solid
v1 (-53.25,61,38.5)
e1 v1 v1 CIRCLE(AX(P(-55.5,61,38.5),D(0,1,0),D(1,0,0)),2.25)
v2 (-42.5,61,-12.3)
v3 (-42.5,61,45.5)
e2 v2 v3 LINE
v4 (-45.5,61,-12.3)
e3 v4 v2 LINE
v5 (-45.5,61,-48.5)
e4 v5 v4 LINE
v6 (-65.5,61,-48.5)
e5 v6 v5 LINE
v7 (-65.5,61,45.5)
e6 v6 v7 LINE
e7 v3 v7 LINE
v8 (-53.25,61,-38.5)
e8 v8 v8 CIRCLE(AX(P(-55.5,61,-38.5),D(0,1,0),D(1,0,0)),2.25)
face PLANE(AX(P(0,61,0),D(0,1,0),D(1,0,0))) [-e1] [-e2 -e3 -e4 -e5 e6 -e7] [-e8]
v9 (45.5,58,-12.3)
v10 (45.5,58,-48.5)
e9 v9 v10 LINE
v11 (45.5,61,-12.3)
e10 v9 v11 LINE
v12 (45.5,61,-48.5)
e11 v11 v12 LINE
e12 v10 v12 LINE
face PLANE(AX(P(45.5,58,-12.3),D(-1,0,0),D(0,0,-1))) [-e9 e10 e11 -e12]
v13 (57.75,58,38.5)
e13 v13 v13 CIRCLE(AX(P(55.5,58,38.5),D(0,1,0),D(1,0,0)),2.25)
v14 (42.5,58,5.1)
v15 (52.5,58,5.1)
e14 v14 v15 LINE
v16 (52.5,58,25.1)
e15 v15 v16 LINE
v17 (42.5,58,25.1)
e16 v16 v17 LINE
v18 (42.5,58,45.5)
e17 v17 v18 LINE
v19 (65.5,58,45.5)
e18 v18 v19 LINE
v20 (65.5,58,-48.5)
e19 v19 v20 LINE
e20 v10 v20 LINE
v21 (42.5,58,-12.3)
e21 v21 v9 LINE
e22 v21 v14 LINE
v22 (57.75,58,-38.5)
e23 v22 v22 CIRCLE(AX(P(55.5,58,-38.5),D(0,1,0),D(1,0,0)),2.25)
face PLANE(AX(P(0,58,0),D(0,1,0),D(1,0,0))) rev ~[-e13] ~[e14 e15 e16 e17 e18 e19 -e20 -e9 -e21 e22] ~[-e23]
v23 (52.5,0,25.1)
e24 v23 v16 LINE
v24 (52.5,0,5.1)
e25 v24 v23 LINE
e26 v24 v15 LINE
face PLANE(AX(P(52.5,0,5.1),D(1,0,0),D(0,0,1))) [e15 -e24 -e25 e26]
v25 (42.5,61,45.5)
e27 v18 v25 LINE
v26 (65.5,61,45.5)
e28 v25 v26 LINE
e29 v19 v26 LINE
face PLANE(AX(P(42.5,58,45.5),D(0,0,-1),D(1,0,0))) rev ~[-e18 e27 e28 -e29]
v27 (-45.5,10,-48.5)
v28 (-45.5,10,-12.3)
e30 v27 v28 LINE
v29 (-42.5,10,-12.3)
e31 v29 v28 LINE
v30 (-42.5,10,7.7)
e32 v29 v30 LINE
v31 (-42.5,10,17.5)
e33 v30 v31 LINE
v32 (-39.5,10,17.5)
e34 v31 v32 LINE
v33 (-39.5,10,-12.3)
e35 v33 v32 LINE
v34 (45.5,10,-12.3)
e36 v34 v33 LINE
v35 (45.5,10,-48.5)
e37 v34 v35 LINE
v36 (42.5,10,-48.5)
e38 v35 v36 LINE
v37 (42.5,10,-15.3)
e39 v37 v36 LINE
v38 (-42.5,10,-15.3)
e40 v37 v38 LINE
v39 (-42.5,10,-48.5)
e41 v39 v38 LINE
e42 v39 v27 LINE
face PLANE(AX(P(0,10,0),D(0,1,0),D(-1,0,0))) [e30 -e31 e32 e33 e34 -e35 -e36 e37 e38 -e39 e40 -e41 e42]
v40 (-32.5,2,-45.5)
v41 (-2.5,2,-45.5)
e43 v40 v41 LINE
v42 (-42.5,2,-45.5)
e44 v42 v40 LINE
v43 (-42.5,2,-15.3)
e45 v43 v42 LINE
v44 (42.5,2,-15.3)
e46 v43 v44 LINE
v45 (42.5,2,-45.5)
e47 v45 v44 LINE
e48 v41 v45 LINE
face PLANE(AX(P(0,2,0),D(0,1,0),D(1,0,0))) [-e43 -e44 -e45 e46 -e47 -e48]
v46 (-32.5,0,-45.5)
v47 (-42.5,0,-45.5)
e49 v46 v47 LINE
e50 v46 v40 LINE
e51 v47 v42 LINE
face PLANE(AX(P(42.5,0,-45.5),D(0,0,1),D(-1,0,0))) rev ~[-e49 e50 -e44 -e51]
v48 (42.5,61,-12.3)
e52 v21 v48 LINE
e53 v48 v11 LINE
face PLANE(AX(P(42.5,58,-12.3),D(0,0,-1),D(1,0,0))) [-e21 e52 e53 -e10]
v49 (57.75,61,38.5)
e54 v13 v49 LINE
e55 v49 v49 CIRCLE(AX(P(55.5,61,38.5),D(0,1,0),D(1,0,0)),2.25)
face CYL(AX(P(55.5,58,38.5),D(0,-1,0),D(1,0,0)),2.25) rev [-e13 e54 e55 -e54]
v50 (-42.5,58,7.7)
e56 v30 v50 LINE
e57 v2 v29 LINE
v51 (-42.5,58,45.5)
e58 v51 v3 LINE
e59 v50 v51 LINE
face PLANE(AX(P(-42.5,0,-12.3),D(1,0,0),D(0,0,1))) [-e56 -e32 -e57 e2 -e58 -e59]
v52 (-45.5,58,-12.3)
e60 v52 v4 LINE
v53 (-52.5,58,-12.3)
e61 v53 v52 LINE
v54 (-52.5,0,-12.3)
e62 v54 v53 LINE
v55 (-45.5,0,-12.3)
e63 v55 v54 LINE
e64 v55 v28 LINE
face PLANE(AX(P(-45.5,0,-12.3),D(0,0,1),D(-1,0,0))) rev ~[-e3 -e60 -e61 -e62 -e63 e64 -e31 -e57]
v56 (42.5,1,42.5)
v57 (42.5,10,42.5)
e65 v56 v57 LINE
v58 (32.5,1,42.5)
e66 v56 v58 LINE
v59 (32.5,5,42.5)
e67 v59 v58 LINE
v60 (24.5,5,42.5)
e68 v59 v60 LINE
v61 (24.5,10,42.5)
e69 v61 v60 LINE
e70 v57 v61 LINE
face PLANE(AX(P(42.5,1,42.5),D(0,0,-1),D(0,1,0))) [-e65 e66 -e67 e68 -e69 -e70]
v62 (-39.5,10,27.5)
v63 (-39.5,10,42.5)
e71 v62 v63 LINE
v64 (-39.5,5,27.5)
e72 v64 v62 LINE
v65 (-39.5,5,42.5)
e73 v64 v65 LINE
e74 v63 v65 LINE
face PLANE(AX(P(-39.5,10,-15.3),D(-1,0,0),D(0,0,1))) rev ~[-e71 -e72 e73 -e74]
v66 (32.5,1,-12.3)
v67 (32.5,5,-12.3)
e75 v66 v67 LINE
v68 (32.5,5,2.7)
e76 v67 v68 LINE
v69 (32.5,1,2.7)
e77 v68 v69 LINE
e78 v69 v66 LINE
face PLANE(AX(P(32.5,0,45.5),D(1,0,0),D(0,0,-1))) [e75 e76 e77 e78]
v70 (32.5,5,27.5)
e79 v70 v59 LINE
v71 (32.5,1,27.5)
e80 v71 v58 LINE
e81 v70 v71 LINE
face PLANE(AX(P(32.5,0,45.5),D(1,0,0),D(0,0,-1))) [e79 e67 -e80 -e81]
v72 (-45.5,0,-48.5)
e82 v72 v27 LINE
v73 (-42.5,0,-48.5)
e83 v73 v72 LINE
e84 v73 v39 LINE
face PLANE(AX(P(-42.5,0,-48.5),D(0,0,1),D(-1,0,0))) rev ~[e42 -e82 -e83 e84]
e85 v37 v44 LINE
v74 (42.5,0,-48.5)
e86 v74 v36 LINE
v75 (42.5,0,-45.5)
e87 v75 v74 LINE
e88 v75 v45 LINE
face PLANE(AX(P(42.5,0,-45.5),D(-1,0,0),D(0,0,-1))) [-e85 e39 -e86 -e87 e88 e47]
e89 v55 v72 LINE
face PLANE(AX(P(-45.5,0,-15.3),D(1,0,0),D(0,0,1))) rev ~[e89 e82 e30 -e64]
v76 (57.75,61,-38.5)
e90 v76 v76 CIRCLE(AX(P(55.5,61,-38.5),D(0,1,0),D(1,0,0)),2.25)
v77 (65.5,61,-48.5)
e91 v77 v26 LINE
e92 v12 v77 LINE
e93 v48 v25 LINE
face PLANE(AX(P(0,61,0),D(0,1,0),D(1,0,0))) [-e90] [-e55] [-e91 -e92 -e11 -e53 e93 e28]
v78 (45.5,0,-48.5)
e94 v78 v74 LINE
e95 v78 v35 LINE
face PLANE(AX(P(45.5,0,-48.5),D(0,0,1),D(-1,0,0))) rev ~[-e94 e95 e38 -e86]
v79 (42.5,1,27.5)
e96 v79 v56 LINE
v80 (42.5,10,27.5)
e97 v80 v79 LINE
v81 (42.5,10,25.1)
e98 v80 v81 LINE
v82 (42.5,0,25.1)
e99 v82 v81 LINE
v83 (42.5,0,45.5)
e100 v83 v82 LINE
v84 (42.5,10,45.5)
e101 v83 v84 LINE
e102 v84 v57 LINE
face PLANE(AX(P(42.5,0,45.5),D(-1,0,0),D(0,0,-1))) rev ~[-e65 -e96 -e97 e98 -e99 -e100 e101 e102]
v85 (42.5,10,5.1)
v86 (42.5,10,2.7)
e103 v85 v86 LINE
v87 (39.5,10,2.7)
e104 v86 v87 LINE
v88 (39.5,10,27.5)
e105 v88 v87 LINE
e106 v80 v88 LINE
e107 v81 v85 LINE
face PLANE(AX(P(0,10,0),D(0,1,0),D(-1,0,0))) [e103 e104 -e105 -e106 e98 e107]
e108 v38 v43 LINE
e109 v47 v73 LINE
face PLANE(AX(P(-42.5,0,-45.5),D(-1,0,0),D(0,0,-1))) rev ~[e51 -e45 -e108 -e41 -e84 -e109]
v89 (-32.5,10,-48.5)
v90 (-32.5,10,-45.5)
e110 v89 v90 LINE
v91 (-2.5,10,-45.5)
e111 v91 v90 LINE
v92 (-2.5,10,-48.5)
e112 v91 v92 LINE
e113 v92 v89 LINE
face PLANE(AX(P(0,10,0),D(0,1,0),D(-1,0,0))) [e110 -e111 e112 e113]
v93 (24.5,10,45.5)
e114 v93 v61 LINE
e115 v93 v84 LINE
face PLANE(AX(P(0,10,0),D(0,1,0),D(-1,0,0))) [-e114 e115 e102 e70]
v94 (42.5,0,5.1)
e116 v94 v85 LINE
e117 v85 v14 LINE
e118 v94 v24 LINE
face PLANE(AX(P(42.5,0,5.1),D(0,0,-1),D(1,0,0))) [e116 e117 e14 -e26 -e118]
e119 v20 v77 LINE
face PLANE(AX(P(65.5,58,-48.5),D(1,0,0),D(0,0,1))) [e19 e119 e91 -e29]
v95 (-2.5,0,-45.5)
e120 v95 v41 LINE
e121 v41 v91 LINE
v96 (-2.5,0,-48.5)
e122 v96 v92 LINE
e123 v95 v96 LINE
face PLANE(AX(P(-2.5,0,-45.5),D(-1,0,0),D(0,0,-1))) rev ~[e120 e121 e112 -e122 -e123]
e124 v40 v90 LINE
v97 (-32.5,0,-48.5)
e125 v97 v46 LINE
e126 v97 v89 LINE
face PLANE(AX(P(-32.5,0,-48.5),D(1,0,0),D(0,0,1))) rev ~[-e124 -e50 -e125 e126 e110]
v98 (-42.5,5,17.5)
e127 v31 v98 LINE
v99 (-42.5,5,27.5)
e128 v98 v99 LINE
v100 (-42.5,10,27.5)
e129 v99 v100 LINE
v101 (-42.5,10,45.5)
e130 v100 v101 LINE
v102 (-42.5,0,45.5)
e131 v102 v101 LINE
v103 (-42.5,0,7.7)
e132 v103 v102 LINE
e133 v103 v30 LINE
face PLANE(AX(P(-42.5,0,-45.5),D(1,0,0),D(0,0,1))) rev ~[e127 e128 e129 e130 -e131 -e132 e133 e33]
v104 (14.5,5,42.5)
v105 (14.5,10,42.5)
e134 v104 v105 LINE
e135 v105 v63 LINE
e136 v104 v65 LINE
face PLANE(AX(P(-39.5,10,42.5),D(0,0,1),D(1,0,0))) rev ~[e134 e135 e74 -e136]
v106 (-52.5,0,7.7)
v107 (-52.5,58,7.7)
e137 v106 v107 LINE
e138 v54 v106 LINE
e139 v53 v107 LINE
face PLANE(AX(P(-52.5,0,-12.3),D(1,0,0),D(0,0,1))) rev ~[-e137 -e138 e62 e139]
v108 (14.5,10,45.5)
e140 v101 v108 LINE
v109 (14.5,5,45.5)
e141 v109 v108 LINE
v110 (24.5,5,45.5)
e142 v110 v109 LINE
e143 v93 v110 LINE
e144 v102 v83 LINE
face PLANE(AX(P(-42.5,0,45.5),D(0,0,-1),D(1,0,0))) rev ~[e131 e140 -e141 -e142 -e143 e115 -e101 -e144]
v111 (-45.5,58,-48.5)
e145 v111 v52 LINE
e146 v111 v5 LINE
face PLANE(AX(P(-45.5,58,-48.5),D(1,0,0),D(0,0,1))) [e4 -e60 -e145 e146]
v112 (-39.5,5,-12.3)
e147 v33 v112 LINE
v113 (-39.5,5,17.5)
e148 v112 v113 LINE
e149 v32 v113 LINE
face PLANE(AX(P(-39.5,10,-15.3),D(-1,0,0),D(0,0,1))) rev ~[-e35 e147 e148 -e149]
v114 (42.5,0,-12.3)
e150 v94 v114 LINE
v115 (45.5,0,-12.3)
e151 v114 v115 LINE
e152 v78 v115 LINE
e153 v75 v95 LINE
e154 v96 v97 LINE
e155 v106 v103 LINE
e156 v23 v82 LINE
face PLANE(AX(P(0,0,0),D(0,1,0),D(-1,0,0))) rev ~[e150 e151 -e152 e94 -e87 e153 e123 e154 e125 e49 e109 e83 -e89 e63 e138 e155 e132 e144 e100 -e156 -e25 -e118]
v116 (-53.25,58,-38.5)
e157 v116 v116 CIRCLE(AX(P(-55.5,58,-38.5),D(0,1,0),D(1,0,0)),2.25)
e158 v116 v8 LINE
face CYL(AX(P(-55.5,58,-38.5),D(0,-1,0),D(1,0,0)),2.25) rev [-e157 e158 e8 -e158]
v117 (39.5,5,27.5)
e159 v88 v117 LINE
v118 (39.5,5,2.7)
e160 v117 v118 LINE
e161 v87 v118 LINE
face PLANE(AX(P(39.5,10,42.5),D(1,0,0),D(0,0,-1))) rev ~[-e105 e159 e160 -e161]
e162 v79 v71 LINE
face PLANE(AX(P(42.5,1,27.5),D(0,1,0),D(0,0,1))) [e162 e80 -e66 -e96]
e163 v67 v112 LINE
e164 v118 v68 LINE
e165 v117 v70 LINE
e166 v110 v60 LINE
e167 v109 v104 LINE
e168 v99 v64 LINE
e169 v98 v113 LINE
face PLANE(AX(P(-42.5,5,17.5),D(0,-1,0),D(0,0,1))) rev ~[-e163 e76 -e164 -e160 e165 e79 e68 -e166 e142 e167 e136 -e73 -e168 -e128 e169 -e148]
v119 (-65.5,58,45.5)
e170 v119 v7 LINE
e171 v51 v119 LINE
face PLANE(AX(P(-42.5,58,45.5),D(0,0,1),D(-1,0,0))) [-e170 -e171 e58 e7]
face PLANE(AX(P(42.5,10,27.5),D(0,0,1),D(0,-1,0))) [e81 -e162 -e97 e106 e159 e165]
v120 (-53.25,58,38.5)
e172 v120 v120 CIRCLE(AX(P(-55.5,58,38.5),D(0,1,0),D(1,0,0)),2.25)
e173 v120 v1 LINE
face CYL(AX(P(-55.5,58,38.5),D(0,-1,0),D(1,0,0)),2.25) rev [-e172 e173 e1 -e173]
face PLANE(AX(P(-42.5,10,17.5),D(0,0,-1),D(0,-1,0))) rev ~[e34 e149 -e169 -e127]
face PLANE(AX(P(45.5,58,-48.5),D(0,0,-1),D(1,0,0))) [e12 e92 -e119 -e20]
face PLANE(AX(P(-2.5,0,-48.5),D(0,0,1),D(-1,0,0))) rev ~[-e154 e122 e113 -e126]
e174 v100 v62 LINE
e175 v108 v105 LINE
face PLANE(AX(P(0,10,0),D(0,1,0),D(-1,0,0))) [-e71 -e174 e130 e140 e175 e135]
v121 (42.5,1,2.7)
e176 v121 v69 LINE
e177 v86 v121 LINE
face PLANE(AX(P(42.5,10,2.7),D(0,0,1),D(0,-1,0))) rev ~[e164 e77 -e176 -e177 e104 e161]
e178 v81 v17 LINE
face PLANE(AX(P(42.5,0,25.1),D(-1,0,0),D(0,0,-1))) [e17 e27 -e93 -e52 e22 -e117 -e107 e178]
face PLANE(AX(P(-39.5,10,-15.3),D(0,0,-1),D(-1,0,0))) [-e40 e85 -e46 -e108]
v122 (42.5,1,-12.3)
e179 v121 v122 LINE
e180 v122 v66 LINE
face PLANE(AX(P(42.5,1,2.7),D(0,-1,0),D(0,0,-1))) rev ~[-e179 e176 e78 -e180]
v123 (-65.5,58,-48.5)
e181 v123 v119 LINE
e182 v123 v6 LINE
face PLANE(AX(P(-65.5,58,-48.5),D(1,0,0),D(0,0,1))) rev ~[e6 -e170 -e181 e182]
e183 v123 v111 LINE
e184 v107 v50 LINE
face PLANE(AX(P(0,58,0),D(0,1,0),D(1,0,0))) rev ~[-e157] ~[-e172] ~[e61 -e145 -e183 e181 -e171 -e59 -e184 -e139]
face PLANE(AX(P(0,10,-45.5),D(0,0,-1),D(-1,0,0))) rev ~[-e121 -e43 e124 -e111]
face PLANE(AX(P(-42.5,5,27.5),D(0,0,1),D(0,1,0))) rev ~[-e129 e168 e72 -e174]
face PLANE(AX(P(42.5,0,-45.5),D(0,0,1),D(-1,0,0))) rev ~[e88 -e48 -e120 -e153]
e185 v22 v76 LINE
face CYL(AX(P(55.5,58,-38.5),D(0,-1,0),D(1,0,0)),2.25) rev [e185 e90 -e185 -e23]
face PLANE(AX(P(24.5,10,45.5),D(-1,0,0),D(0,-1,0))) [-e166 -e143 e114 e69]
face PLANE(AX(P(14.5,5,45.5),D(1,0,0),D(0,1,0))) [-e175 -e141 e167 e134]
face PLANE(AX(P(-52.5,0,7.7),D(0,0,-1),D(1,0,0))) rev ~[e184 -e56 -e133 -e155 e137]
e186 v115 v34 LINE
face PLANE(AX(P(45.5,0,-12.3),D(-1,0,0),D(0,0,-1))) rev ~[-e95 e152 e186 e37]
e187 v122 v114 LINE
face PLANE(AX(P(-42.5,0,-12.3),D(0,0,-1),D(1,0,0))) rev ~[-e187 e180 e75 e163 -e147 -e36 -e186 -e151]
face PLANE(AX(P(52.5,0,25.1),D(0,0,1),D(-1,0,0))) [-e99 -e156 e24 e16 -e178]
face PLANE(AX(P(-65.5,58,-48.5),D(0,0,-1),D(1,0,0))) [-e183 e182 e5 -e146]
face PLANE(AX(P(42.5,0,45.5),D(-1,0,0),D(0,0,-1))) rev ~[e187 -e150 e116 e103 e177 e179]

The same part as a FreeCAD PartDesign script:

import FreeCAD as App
import Part
import Sketcher

V = App.Vector
Q = App.Units.Quantity

doc = App.newDocument("Part")
body = doc.addObject("PartDesign::Body", "Body")

sketch1 = doc.addObject("Sketcher::SketchObject", "Sketch")
body.addObject(sketch1)
sketch1.AttachmentSupport = (doc.XZ_Plane, [""])
sketch1.MapMode = "FlatFace"
sketch1.addGeometry(Part.LineSegment(V(-42.5, -45.5, 0), V(-42.5, 45.5, 0)), False)
sketch1.addGeometry(Part.LineSegment(V(-42.5, 45.5, 0), V(42.5, 45.5, 0)), False)
sketch1.addGeometry(Part.LineSegment(V(42.5, 45.5, 0), V(42.5, -45.5, 0)), False)
sketch1.addGeometry(Part.LineSegment(V(42.5, -45.5, 0), V(-42.5, -45.5, 0)), False)
sketch1.addConstraint(Sketcher.Constraint("Coincident", 0, 2, 1, 1))
sketch1.addConstraint(Sketcher.Constraint("Coincident", 1, 2, 2, 1))
sketch1.addConstraint(Sketcher.Constraint("Coincident", 2, 2, 3, 1))
sketch1.addConstraint(Sketcher.Constraint("Coincident", 3, 2, 0, 1))
sketch1.addConstraint(Sketcher.Constraint("Vertical", 0))
sketch1.addConstraint(Sketcher.Constraint("Horizontal", 1))
sketch1.addConstraint(Sketcher.Constraint("Vertical", 2))
sketch1.addConstraint(Sketcher.Constraint("Horizontal", 3))
sketch1.addConstraint(Sketcher.Constraint("Symmetric", 0, 2, 2, 2, -1, 1))
sketch1.addConstraint(Sketcher.Constraint("DistanceX", 1, 1, 1, 2, Q("85 mm")))
sketch1.addConstraint(Sketcher.Constraint("DistanceY", 0, 1, 0, 2, Q("91 mm")))
pad1 = doc.addObject("PartDesign::Pad", "Pad")
body.addObject(pad1)
pad1.Profile = sketch1
pad1.Length = 10
pad1.Reversed = True

sketch2 = doc.addObject("Sketcher::SketchObject", "Sketch001")
body.addObject(sketch2)
sketch2.AttachmentSupport = (doc.XZ_Plane, [""])
sketch2.MapMode = "FlatFace"
sketch2.AttachmentOffset = App.Placement(V(0, 0, -10), App.Rotation())
sketch2.addGeometry(Part.LineSegment(V(39.5, -15.3, 0), V(-39.5, -15.3, 0)), False)
sketch2.addGeometry(Part.LineSegment(V(-39.5, -15.3, 0), V(-39.5, 42.5, 0)), False)
sketch2.addGeometry(Part.LineSegment(V(-39.5, 42.5, 0), V(39.5, 42.5, 0)), False)
sketch2.addGeometry(Part.LineSegment(V(39.5, 42.5, 0), V(39.5, -15.3, 0)), False)
sketch2.addConstraint(Sketcher.Constraint("Coincident", 0, 2, 1, 1))
sketch2.addConstraint(Sketcher.Constraint("Coincident", 1, 2, 2, 1))
sketch2.addConstraint(Sketcher.Constraint("Coincident", 2, 2, 3, 1))
sketch2.addConstraint(Sketcher.Constraint("Coincident", 3, 2, 0, 1))
sketch2.addConstraint(Sketcher.Constraint("Horizontal", 0))
sketch2.addConstraint(Sketcher.Constraint("Vertical", 1))
sketch2.addConstraint(Sketcher.Constraint("Horizontal", 2))
sketch2.addConstraint(Sketcher.Constraint("Vertical", 3))
sketch2.addConstraint(Sketcher.Constraint("DistanceX", 0, 2, 0, 1, Q("79 mm")))
sketch2.addConstraint(Sketcher.Constraint("DistanceY", 1, 1, 1, 2, Q("57.8 mm")))
sketch2.addConstraint(Sketcher.Constraint("DistanceX", 0, 2, -1, 1, Q("39.5 mm")))
sketch2.addConstraint(Sketcher.Constraint("DistanceY", 0, 2, -1, 1, Q("15.3 mm")))
pocket1 = doc.addObject("PartDesign::Pocket", "Pocket")
body.addObject(pocket1)
pocket1.Profile = sketch2
pocket1.Length = 5
pocket1.Reversed = True

sketch3 = doc.addObject("Sketcher::SketchObject", "Sketch002")
body.addObject(sketch3)
sketch3.AttachmentSupport = (doc.XZ_Plane, [""])
sketch3.MapMode = "FlatFace"
sketch3.addGeometry(Part.LineSegment(V(45.5, -12.3, 0), V(45.5, -48.5, 0)), False)
sketch3.addGeometry(Part.LineSegment(V(45.5, -48.5, 0), V(42.5, -48.5, 0)), False)
sketch3.addGeometry(Part.LineSegment(V(42.5, -48.5, 0), V(42.5, -45.5, 0)), False)
sketch3.addGeometry(Part.LineSegment(V(42.5, -45.5, 0), V(-2.5, -45.5, 0)), False)
sketch3.addGeometry(Part.LineSegment(V(-2.5, -45.5, 0), V(-2.5, -48.5, 0)), False)
sketch3.addGeometry(Part.LineSegment(V(-2.5, -48.5, 0), V(-32.5, -48.5, 0)), False)
sketch3.addGeometry(Part.LineSegment(V(-32.5, -48.5, 0), V(-32.5, -45.5, 0)), False)
sketch3.addGeometry(Part.LineSegment(V(-32.5, -45.5, 0), V(-42.5, -45.5, 0)), False)
sketch3.addGeometry(Part.LineSegment(V(-42.5, -45.5, 0), V(-42.5, -48.5, 0)), False)
sketch3.addGeometry(Part.LineSegment(V(-42.5, -48.5, 0), V(-45.5, -48.5, 0)), False)
sketch3.addGeometry(Part.LineSegment(V(-45.5, -48.5, 0), V(-45.5, -12.3, 0)), False)
sketch3.addGeometry(Part.LineSegment(V(-45.5, -12.3, 0), V(45.5, -12.3, 0)), False)
sketch3.addConstraint(Sketcher.Constraint("Coincident", 0, 2, 1, 1))
sketch3.addConstraint(Sketcher.Constraint("Coincident", 1, 2, 2, 1))
sketch3.addConstraint(Sketcher.Constraint("Coincident", 2, 2, 3, 1))
sketch3.addConstraint(Sketcher.Constraint("Coincident", 3, 2, 4, 1))
sketch3.addConstraint(Sketcher.Constraint("Coincident", 4, 2, 5, 1))
sketch3.addConstraint(Sketcher.Constraint("Coincident", 5, 2, 6, 1))
sketch3.addConstraint(Sketcher.Constraint("Coincident", 6, 2, 7, 1))
sketch3.addConstraint(Sketcher.Constraint("Coincident", 7, 2, 8, 1))
sketch3.addConstraint(Sketcher.Constraint("Coincident", 8, 2, 9, 1))
sketch3.addConstraint(Sketcher.Constraint("Coincident", 9, 2, 10, 1))
sketch3.addConstraint(Sketcher.Constraint("Coincident", 10, 2, 11, 1))
sketch3.addConstraint(Sketcher.Constraint("Coincident", 11, 2, 0, 1))
sketch3.addConstraint(Sketcher.Constraint("Vertical", 0))
sketch3.addConstraint(Sketcher.Constraint("Horizontal", 1))
sketch3.addConstraint(Sketcher.Constraint("Vertical", 2))
sketch3.addConstraint(Sketcher.Constraint("Horizontal", 3))
sketch3.addConstraint(Sketcher.Constraint("Vertical", 4))
sketch3.addConstraint(Sketcher.Constraint("Horizontal", 5))
sketch3.addConstraint(Sketcher.Constraint("Vertical", 6))
sketch3.addConstraint(Sketcher.Constraint("Horizontal", 7))
sketch3.addConstraint(Sketcher.Constraint("Vertical", 8))
sketch3.addConstraint(Sketcher.Constraint("Horizontal", 9))
sketch3.addConstraint(Sketcher.Constraint("Vertical", 10))
sketch3.addConstraint(Sketcher.Constraint("Horizontal", 11))
sketch3.addConstraint(Sketcher.Constraint("Symmetric", 2, 2, 7, 2, -2))
sketch3.addConstraint(Sketcher.Constraint("Symmetric", 0, 2, 9, 2, -2))
sketch3.addConstraint(Sketcher.Constraint("Horizontal", 1, 2, 4, 2))
sketch3.addConstraint(Sketcher.Constraint("Equal", 9, 2))
sketch3.addConstraint(Sketcher.Constraint("DistanceX", 1, 2, 1, 1, Q("3 mm")))
sketch3.addConstraint(Sketcher.Constraint("DistanceX", 5, 2, 5, 1, Q("30 mm")))
sketch3.addConstraint(Sketcher.Constraint("DistanceX", 7, 2, 7, 1, Q("10 mm")))
sketch3.addConstraint(Sketcher.Constraint("DistanceX", 3, 2, 3, 1, Q("45 mm")))
sketch3.addConstraint(Sketcher.Constraint("DistanceY", 0, 2, 0, 1, Q("36.2 mm")))
sketch3.addConstraint(Sketcher.Constraint("DistanceY", 0, 2, -1, 1, Q("48.5 mm")))
pad2 = doc.addObject("PartDesign::Pad", "Pad001")
body.addObject(pad2)
pad2.Profile = sketch3
pad2.Length = 10
pad2.Reversed = True

sketch4 = doc.addObject("Sketcher::SketchObject", "Sketch003")
body.addObject(sketch4)
sketch4.AttachmentSupport = (doc.XZ_Plane, [""])
sketch4.MapMode = "FlatFace"
sketch4.AttachmentOffset = App.Placement(V(0, 0, -10), App.Rotation())
sketch4.addGeometry(Part.LineSegment(V(-42.5, -15.3, 0), V(42.5, -15.3, 0)), False)
sketch4.addGeometry(Part.LineSegment(V(42.5, -15.3, 0), V(42.5, -45.5, 0)), False)
sketch4.addGeometry(Part.LineSegment(V(42.5, -45.5, 0), V(-42.5, -45.5, 0)), False)
sketch4.addGeometry(Part.LineSegment(V(-42.5, -45.5, 0), V(-42.5, -15.3, 0)), False)
sketch4.addConstraint(Sketcher.Constraint("Coincident", 0, 2, 1, 1))
sketch4.addConstraint(Sketcher.Constraint("Coincident", 1, 2, 2, 1))
sketch4.addConstraint(Sketcher.Constraint("Coincident", 2, 2, 3, 1))
sketch4.addConstraint(Sketcher.Constraint("Coincident", 3, 2, 0, 1))
sketch4.addConstraint(Sketcher.Constraint("Horizontal", 0))
sketch4.addConstraint(Sketcher.Constraint("Vertical", 1))
sketch4.addConstraint(Sketcher.Constraint("Horizontal", 2))
sketch4.addConstraint(Sketcher.Constraint("Vertical", 3))
sketch4.addConstraint(Sketcher.Constraint("DistanceX", 0, 1, 0, 2, Q("85 mm")))
sketch4.addConstraint(Sketcher.Constraint("DistanceY", 1, 2, 1, 1, Q("30.2 mm")))
sketch4.addConstraint(Sketcher.Constraint("DistanceX", -1, 1, 0, 2, Q("42.5 mm")))
sketch4.addConstraint(Sketcher.Constraint("DistanceY", 0, 2, -1, 1, Q("15.3 mm")))
pocket2 = doc.addObject("PartDesign::Pocket", "Pocket001")
body.addObject(pocket2)
pocket2.Profile = sketch4
pocket2.Length = 8
pocket2.Reversed = True

sketch5 = doc.addObject("Sketcher::SketchObject", "Sketch004")
body.addObject(sketch5)
sketch5.AttachmentSupport = (doc.YZ_Plane, [""])
sketch5.MapMode = "FlatFace"
sketch5.AttachmentOffset = App.Placement(V(0, 0, -42.5), App.Rotation())
sketch5.addGeometry(Part.LineSegment(V(5, 27.5, 0), V(10, 27.5, 0)), False)
sketch5.addGeometry(Part.LineSegment(V(10, 27.5, 0), V(10, 17.5, 0)), False)
sketch5.addGeometry(Part.LineSegment(V(10, 17.5, 0), V(5, 17.5, 0)), False)
sketch5.addGeometry(Part.LineSegment(V(5, 17.5, 0), V(5, 27.5, 0)), False)
sketch5.addConstraint(Sketcher.Constraint("Coincident", 0, 2, 1, 1))
sketch5.addConstraint(Sketcher.Constraint("Coincident", 1, 2, 2, 1))
sketch5.addConstraint(Sketcher.Constraint("Coincident", 2, 2, 3, 1))
sketch5.addConstraint(Sketcher.Constraint("Coincident", 3, 2, 0, 1))
sketch5.addConstraint(Sketcher.Constraint("Horizontal", 0))
sketch5.addConstraint(Sketcher.Constraint("Vertical", 1))
sketch5.addConstraint(Sketcher.Constraint("Horizontal", 2))
sketch5.addConstraint(Sketcher.Constraint("Vertical", 3))
sketch5.addConstraint(Sketcher.Constraint("DistanceY", 1, 2, 1, 1, Q("10 mm")))
sketch5.addConstraint(Sketcher.Constraint("DistanceX", -1, 1, 0, 2, Q("10 mm")))
sketch5.addConstraint(Sketcher.Constraint("DistanceX", 0, 1, 0, 2, Q("5 mm")))
sketch5.addConstraint(Sketcher.Constraint("DistanceY", -1, 1, 0, 2, Q("27.5 mm")))
pocket3 = doc.addObject("PartDesign::Pocket", "Pocket002")
body.addObject(pocket3)
pocket3.Profile = sketch5
pocket3.Length = 10
pocket3.Reversed = True

sketch6 = doc.addObject("Sketcher::SketchObject", "Sketch005")
body.addObject(sketch6)
sketch6.AttachmentSupport = (doc.XY_Plane, [""])
sketch6.MapMode = "FlatFace"
sketch6.AttachmentOffset = App.Placement(V(0, 0, 45.5), App.Rotation())
sketch6.addGeometry(Part.LineSegment(V(14.5, 5, 0), V(24.5, 5, 0)), False)
sketch6.addGeometry(Part.LineSegment(V(24.5, 5, 0), V(24.5, 10, 0)), False)
sketch6.addGeometry(Part.LineSegment(V(24.5, 10, 0), V(14.5, 10, 0)), False)
sketch6.addGeometry(Part.LineSegment(V(14.5, 10, 0), V(14.5, 5, 0)), False)
sketch6.addConstraint(Sketcher.Constraint("Coincident", 0, 2, 1, 1))
sketch6.addConstraint(Sketcher.Constraint("Coincident", 1, 2, 2, 1))
sketch6.addConstraint(Sketcher.Constraint("Coincident", 2, 2, 3, 1))
sketch6.addConstraint(Sketcher.Constraint("Coincident", 3, 2, 0, 1))
sketch6.addConstraint(Sketcher.Constraint("Horizontal", 0))
sketch6.addConstraint(Sketcher.Constraint("Vertical", 1))
sketch6.addConstraint(Sketcher.Constraint("Horizontal", 2))
sketch6.addConstraint(Sketcher.Constraint("Vertical", 3))
sketch6.addConstraint(Sketcher.Constraint("DistanceX", 0, 1, 0, 2, Q("10 mm")))
sketch6.addConstraint(Sketcher.Constraint("DistanceY", -1, 1, 1, 2, Q("10 mm")))
sketch6.addConstraint(Sketcher.Constraint("DistanceY", 1, 1, 1, 2, Q("5 mm")))
sketch6.addConstraint(Sketcher.Constraint("DistanceX", -1, 1, 0, 2, Q("24.5 mm")))
pocket4 = doc.addObject("PartDesign::Pocket", "Pocket003")
body.addObject(pocket4)
pocket4.Profile = sketch6
pocket4.Length = 10

sketch7 = doc.addObject("Sketcher::SketchObject", "Sketch006")
body.addObject(sketch7)
sketch7.AttachmentSupport = (doc.YZ_Plane, [""])
sketch7.MapMode = "FlatFace"
sketch7.AttachmentOffset = App.Placement(V(0, 0, 42.5), App.Rotation())
sketch7.addGeometry(Part.LineSegment(V(1, -12.3, 0), V(10, -12.3, 0)), False)
sketch7.addGeometry(Part.LineSegment(V(10, -12.3, 0), V(10, 2.7, 0)), False)
sketch7.addGeometry(Part.LineSegment(V(10, 2.7, 0), V(1, 2.7, 0)), False)
sketch7.addGeometry(Part.LineSegment(V(1, 2.7, 0), V(1, -12.3, 0)), False)
sketch7.addGeometry(Part.LineSegment(V(1, 27.5, 0), V(10, 27.5, 0)), False)
sketch7.addGeometry(Part.LineSegment(V(10, 27.5, 0), V(10, 42.5, 0)), False)
sketch7.addGeometry(Part.LineSegment(V(10, 42.5, 0), V(1, 42.5, 0)), False)
sketch7.addGeometry(Part.LineSegment(V(1, 42.5, 0), V(1, 27.5, 0)), False)
sketch7.addConstraint(Sketcher.Constraint("Coincident", 0, 2, 1, 1))
sketch7.addConstraint(Sketcher.Constraint("Coincident", 1, 2, 2, 1))
sketch7.addConstraint(Sketcher.Constraint("Coincident", 2, 2, 3, 1))
sketch7.addConstraint(Sketcher.Constraint("Coincident", 3, 2, 0, 1))
sketch7.addConstraint(Sketcher.Constraint("Coincident", 4, 2, 5, 1))
sketch7.addConstraint(Sketcher.Constraint("Coincident", 5, 2, 6, 1))
sketch7.addConstraint(Sketcher.Constraint("Coincident", 6, 2, 7, 1))
sketch7.addConstraint(Sketcher.Constraint("Coincident", 7, 2, 4, 1))
sketch7.addConstraint(Sketcher.Constraint("Horizontal", 0))
sketch7.addConstraint(Sketcher.Constraint("Vertical", 1))
sketch7.addConstraint(Sketcher.Constraint("Horizontal", 2))
sketch7.addConstraint(Sketcher.Constraint("Vertical", 3))
sketch7.addConstraint(Sketcher.Constraint("Horizontal", 4))
sketch7.addConstraint(Sketcher.Constraint("Vertical", 5))
sketch7.addConstraint(Sketcher.Constraint("Horizontal", 6))
sketch7.addConstraint(Sketcher.Constraint("Vertical", 7))
sketch7.addConstraint(Sketcher.Constraint("Vertical", 1, 2, 4, 2))
sketch7.addConstraint(Sketcher.Constraint("Vertical", 3, 2, 6, 2))
sketch7.addConstraint(Sketcher.Constraint("Equal", 3, 5))
sketch7.addConstraint(Sketcher.Constraint("DistanceX", 0, 1, 0, 2, Q("9 mm")))
sketch7.addConstraint(Sketcher.Constraint("DistanceY", 1, 1, 1, 2, Q("15 mm")))
sketch7.addConstraint(Sketcher.Constraint("DistanceX", -1, 1, 0, 2, Q("10 mm")))
sketch7.addConstraint(Sketcher.Constraint("DistanceY", 0, 2, -1, 1, Q("12.3 mm")))
sketch7.addConstraint(Sketcher.Constraint("DistanceY", -1, 1, 4, 2, Q("27.5 mm")))
pocket5 = doc.addObject("PartDesign::Pocket", "Pocket004")
body.addObject(pocket5)
pocket5.Profile = sketch7
pocket5.Length = 10

sketch8 = doc.addObject("Sketcher::SketchObject", "Sketch007")
body.addObject(sketch8)
sketch8.AttachmentSupport = (doc.XZ_Plane, [""])
sketch8.MapMode = "FlatFace"
sketch8.addGeometry(Part.LineSegment(V(-42.5, 7.7, 0), V(-42.5, -12.3, 0)), False)
sketch8.addGeometry(Part.LineSegment(V(-42.5, -12.3, 0), V(-52.5, -12.3, 0)), False)
sketch8.addGeometry(Part.LineSegment(V(-52.5, -12.3, 0), V(-52.5, 7.7, 0)), False)
sketch8.addGeometry(Part.LineSegment(V(-52.5, 7.7, 0), V(-42.5, 7.7, 0)), False)
sketch8.addGeometry(Part.LineSegment(V(42.5, 5.1, 0), V(42.5, 25.1, 0)), False)
sketch8.addGeometry(Part.LineSegment(V(42.5, 25.1, 0), V(52.5, 25.1, 0)), False)
sketch8.addGeometry(Part.LineSegment(V(52.5, 25.1, 0), V(52.5, 5.1, 0)), False)
sketch8.addGeometry(Part.LineSegment(V(52.5, 5.1, 0), V(42.5, 5.1, 0)), False)
sketch8.addConstraint(Sketcher.Constraint("Coincident", 0, 2, 1, 1))
sketch8.addConstraint(Sketcher.Constraint("Coincident", 1, 2, 2, 1))
sketch8.addConstraint(Sketcher.Constraint("Coincident", 2, 2, 3, 1))
sketch8.addConstraint(Sketcher.Constraint("Coincident", 3, 2, 0, 1))
sketch8.addConstraint(Sketcher.Constraint("Coincident", 4, 2, 5, 1))
sketch8.addConstraint(Sketcher.Constraint("Coincident", 5, 2, 6, 1))
sketch8.addConstraint(Sketcher.Constraint("Coincident", 6, 2, 7, 1))
sketch8.addConstraint(Sketcher.Constraint("Coincident", 7, 2, 4, 1))
sketch8.addConstraint(Sketcher.Constraint("Vertical", 0))
sketch8.addConstraint(Sketcher.Constraint("Horizontal", 1))
sketch8.addConstraint(Sketcher.Constraint("Vertical", 2))
sketch8.addConstraint(Sketcher.Constraint("Horizontal", 3))
sketch8.addConstraint(Sketcher.Constraint("Vertical", 4))
sketch8.addConstraint(Sketcher.Constraint("Horizontal", 5))
sketch8.addConstraint(Sketcher.Constraint("Vertical", 6))
sketch8.addConstraint(Sketcher.Constraint("Horizontal", 7))
sketch8.addConstraint(Sketcher.Constraint("Equal", 3, 5))
sketch8.addConstraint(Sketcher.Constraint("Equal", 2, 4))
sketch8.addConstraint(Sketcher.Constraint("DistanceX", 1, 2, 1, 1, Q("10 mm")))
sketch8.addConstraint(Sketcher.Constraint("DistanceY", 0, 2, 0, 1, Q("20 mm")))
sketch8.addConstraint(Sketcher.Constraint("DistanceX", 3, 2, 4, 2, Q("85 mm")))
sketch8.addConstraint(Sketcher.Constraint("DistanceX", 0, 2, -1, 1, Q("42.5 mm")))
sketch8.addConstraint(Sketcher.Constraint("DistanceY", 0, 2, -1, 1, Q("12.3 mm")))
sketch8.addConstraint(Sketcher.Constraint("DistanceY", -1, 1, 4, 2, Q("25.1 mm")))
pad3 = doc.addObject("PartDesign::Pad", "Pad002")
body.addObject(pad3)
pad3.Profile = sketch8
pad3.Length = 58
pad3.Reversed = True

sketch9 = doc.addObject("Sketcher::SketchObject", "Sketch008")
body.addObject(sketch9)
sketch9.AttachmentSupport = (doc.XZ_Plane, [""])
sketch9.MapMode = "FlatFace"
sketch9.AttachmentOffset = App.Placement(V(0, 0, -58), App.Rotation())
sketch9.addGeometry(Part.LineSegment(V(-45.5, -48.5, 0), V(-65.5, -48.5, 0)), False)
sketch9.addGeometry(Part.LineSegment(V(-65.5, -48.5, 0), V(-65.5, 45.5, 0)), False)
sketch9.addGeometry(Part.LineSegment(V(-65.5, 45.5, 0), V(-42.5, 45.5, 0)), False)
sketch9.addGeometry(Part.LineSegment(V(-42.5, 45.5, 0), V(-42.5, -12.3, 0)), False)
sketch9.addGeometry(Part.LineSegment(V(-42.5, -12.3, 0), V(-45.5, -12.3, 0)), False)
sketch9.addGeometry(Part.LineSegment(V(-45.5, -12.3, 0), V(-45.5, -48.5, 0)), False)
sketch9.addGeometry(Part.Circle(V(-55.5, 38.5, 0), V(0, 0, 1), 2.25), False)
sketch9.addGeometry(Part.Circle(V(-55.5, -38.5, 0), V(0, 0, 1), 2.25), False)
sketch9.addGeometry(Part.LineSegment(V(65.5, -48.5, 0), V(45.5, -48.5, 0)), False)
sketch9.addGeometry(Part.LineSegment(V(45.5, -48.5, 0), V(45.5, -12.3, 0)), False)
sketch9.addGeometry(Part.LineSegment(V(45.5, -12.3, 0), V(42.5, -12.3, 0)), False)
sketch9.addGeometry(Part.LineSegment(V(42.5, -12.3, 0), V(42.5, 45.5, 0)), False)
sketch9.addGeometry(Part.LineSegment(V(42.5, 45.5, 0), V(65.5, 45.5, 0)), False)
sketch9.addGeometry(Part.LineSegment(V(65.5, 45.5, 0), V(65.5, -48.5, 0)), False)
sketch9.addGeometry(Part.Circle(V(55.5, 38.5, 0), V(0, 0, 1), 2.25), False)
sketch9.addGeometry(Part.Circle(V(55.5, -38.5, 0), V(0, 0, 1), 2.25), False)
sketch9.addConstraint(Sketcher.Constraint("Coincident", 0, 2, 1, 1))
sketch9.addConstraint(Sketcher.Constraint("Coincident", 1, 2, 2, 1))
sketch9.addConstraint(Sketcher.Constraint("Coincident", 2, 2, 3, 1))
sketch9.addConstraint(Sketcher.Constraint("Coincident", 3, 2, 4, 1))
sketch9.addConstraint(Sketcher.Constraint("Coincident", 4, 2, 5, 1))
sketch9.addConstraint(Sketcher.Constraint("Coincident", 5, 2, 0, 1))
sketch9.addConstraint(Sketcher.Constraint("Coincident", 8, 2, 9, 1))
sketch9.addConstraint(Sketcher.Constraint("Coincident", 9, 2, 10, 1))
sketch9.addConstraint(Sketcher.Constraint("Coincident", 10, 2, 11, 1))
sketch9.addConstraint(Sketcher.Constraint("Coincident", 11, 2, 12, 1))
sketch9.addConstraint(Sketcher.Constraint("Coincident", 12, 2, 13, 1))
sketch9.addConstraint(Sketcher.Constraint("Coincident", 13, 2, 8, 1))
sketch9.addConstraint(Sketcher.Constraint("Horizontal", 0))
sketch9.addConstraint(Sketcher.Constraint("Vertical", 1))
sketch9.addConstraint(Sketcher.Constraint("Horizontal", 2))
sketch9.addConstraint(Sketcher.Constraint("Vertical", 3))
sketch9.addConstraint(Sketcher.Constraint("Horizontal", 4))
sketch9.addConstraint(Sketcher.Constraint("Vertical", 5))
sketch9.addConstraint(Sketcher.Constraint("Horizontal", 8))
sketch9.addConstraint(Sketcher.Constraint("Vertical", 9))
sketch9.addConstraint(Sketcher.Constraint("Horizontal", 10))
sketch9.addConstraint(Sketcher.Constraint("Vertical", 11))
sketch9.addConstraint(Sketcher.Constraint("Horizontal", 12))
sketch9.addConstraint(Sketcher.Constraint("Vertical", 13))
sketch9.addConstraint(Sketcher.Constraint("Equal", 6, 7))
sketch9.addConstraint(Sketcher.Constraint("Equal", 7, 14))
sketch9.addConstraint(Sketcher.Constraint("Equal", 14, 15))
sketch9.addConstraint(Sketcher.Constraint("Symmetric", 7, 3, 14, 3, -1, 1))
sketch9.addConstraint(Sketcher.Constraint("Symmetric", 6, 3, 15, 3, -1, 1))
sketch9.addConstraint(Sketcher.Constraint("Symmetric", 6, 3, 14, 3, -2))
sketch9.addConstraint(Sketcher.Constraint("Symmetric", 5, 2, 8, 2, -2))
sketch9.addConstraint(Sketcher.Constraint("Symmetric", 3, 2, 10, 2, -2))
sketch9.addConstraint(Sketcher.Constraint("Symmetric", 1, 2, 12, 2, -2))
sketch9.addConstraint(Sketcher.Constraint("Diameter", 6, Q("4.5 mm")))
sketch9.addConstraint(Sketcher.Constraint("DistanceX", 0, 2, 0, 1, Q("20 mm")))
sketch9.addConstraint(Sketcher.Constraint("DistanceX", 0, 2, 7, 3, Q("10 mm")))
sketch9.addConstraint(Sketcher.Constraint("DistanceY", 0, 2, 7, 3, Q("10 mm")))
sketch9.addConstraint(Sketcher.Constraint("DistanceX", 2, 1, 2, 2, Q("23 mm")))
sketch9.addConstraint(Sketcher.Constraint("DistanceY", 1, 1, 1, 2, Q("94 mm")))
sketch9.addConstraint(Sketcher.Constraint("DistanceY", 3, 2, 3, 1, Q("57.8 mm")))
sketch9.addConstraint(Sketcher.Constraint("DistanceY", 7, 3, 6, 3, Q("77 mm")))
sketch9.addConstraint(Sketcher.Constraint("DistanceX", 6, 3, 14, 3, Q("111 mm")))
pad4 = doc.addObject("PartDesign::Pad", "Pad003")
body.addObject(pad4)
pad4.Profile = sketch9
pad4.Length = 3
pad4.Reversed = True

doc.recompute()
